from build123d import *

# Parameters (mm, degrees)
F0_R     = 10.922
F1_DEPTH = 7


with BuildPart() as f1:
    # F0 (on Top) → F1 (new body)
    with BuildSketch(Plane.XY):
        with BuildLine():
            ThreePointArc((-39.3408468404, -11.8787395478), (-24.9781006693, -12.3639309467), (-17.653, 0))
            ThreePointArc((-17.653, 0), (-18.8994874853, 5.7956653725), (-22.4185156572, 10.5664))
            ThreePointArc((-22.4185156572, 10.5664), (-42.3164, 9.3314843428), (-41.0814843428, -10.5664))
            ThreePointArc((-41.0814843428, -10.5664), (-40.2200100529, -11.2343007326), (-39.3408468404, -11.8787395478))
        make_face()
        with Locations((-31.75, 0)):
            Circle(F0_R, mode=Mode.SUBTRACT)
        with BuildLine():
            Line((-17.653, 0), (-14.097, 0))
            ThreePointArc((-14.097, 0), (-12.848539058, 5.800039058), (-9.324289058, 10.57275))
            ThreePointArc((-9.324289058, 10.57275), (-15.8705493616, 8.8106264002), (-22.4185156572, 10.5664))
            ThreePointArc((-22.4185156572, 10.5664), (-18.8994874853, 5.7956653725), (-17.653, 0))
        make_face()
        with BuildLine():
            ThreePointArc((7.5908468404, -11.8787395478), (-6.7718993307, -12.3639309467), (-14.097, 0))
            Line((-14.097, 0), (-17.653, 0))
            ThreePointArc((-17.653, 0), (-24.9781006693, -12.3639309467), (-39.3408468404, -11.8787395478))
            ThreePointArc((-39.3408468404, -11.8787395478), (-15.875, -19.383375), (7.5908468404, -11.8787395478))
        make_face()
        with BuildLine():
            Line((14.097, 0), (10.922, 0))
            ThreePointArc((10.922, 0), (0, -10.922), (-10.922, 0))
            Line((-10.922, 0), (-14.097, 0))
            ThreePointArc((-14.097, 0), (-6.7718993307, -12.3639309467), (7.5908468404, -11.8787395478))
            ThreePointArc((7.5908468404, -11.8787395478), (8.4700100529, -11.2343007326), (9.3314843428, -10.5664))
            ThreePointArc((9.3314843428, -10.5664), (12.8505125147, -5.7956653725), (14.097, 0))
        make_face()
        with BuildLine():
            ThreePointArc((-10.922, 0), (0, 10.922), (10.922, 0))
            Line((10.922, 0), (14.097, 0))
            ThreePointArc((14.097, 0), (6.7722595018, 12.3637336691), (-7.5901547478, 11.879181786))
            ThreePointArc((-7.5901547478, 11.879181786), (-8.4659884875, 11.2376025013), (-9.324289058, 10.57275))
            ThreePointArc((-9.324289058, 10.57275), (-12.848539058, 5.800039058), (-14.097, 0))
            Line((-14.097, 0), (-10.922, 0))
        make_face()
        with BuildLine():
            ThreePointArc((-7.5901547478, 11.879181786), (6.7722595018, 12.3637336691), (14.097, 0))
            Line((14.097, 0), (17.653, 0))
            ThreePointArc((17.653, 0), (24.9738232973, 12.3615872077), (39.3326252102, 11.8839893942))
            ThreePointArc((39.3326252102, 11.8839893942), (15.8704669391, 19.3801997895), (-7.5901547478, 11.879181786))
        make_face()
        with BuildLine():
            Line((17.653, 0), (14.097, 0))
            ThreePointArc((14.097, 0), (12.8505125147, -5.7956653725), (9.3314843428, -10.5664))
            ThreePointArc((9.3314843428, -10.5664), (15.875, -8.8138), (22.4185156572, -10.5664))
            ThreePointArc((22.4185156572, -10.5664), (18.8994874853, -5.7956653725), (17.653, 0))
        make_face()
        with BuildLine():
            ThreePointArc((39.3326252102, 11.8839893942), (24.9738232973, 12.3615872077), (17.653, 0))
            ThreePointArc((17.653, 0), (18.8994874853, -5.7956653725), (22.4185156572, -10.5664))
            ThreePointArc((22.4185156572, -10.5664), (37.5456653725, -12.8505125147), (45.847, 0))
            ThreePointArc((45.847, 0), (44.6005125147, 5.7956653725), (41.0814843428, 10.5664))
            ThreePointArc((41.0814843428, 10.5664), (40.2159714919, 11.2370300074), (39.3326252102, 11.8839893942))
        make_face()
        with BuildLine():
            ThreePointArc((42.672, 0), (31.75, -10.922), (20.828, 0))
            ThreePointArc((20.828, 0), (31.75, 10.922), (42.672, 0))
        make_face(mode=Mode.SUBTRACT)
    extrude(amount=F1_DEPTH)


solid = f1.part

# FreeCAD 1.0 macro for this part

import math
import FreeCAD as App
import Part
import Sketcher
from FreeCAD import Vector
Q = App.Units.Quantity

doc = App.newDocument("Part")
body = doc.addObject("PartDesign::Body", "Body")

# Sketch on XY plane
sketch1 = body.newObject("Sketcher::SketchObject", "Sketch")
sketch1.AttachmentSupport = (doc.getObject("XY_Plane"), [""])
sketch1.MapMode = "FlatFace"
sketch1.addGeometry(Part.ArcOfCircle(Part.Circle(Vector(-15.876885, 21.874849, 0), Vector(0, 0, 1), 13.064224), math.radians(-120.048216), math.radians(-59.896213)), False)
sketch1.addGeometry(Part.ArcOfCircle(Part.Circle(Vector(-31.75, 0, 0), Vector(0, 0, 1), 14.097), math.radians(48.551374), math.radians(228.551374)), False)
sketch1.addGeometry(Part.ArcOfCircle(Part.Circle(Vector(-15.875, 21.055999, 0), Vector(0, 0, 1), 40.439374), math.radians(-128.558648), math.radians(-125.469694)), False)
sketch1.addGeometry(Part.ArcOfCircle(Part.Circle(Vector(-15.875, 21.055999, 0), Vector(0, 0, 1), 40.439374), math.radians(-125.469694), math.radians(-54.530306)), False)
sketch1.addGeometry(Part.ArcOfCircle(Part.Circle(Vector(-15.875, 21.055999, 0), Vector(0, 0, 1), 40.439374), math.radians(-54.530306), math.radians(-51.441352)), False)
sketch1.addGeometry(Part.ArcOfCircle(Part.Circle(Vector(15.875, -21.905551, 0), Vector(0, 0, 1), 13.091751), math.radians(60.011924), math.radians(119.988076)), False)
sketch1.addGeometry(Part.ArcOfCircle(Part.Circle(Vector(31.75, 0, 0), Vector(0, 0, 1), 14.097), math.radians(-131.448626), math.radians(0)), False)
sketch1.addGeometry(Part.ArcOfCircle(Part.Circle(Vector(31.75, 0, 0), Vector(0, 0, 1), 14.097), math.radians(0), math.radians(48.551374)), False)
sketch1.addGeometry(Part.ArcOfCircle(Part.Circle(Vector(15.874612, -21.071677, 0), Vector(0, 0, 1), 40.451877), math.radians(51.454763), math.radians(54.556542)), False)
sketch1.addGeometry(Part.ArcOfCircle(Part.Circle(Vector(15.874612, -21.071677, 0), Vector(0, 0, 1), 40.451877), math.radians(54.556542), math.radians(125.455198)), False)
sketch1.addGeometry(Part.ArcOfCircle(Part.Circle(Vector(15.874612, -21.071677, 0), Vector(0, 0, 1), 40.451877), math.radians(125.455198), math.radians(128.530801)), False)
sketch1.addGeometry(Part.Circle(Vector(-31.75, 0, 0), Vector(0, 0, 1), 10.922), False)
sketch1.addGeometry(Part.Circle(Vector(0, 0, 0), Vector(0, 0, 1), 10.922), False)
sketch1.addGeometry(Part.Circle(Vector(31.75, 0, 0), Vector(0, 0, 1), 10.922), False)
sketch1.addConstraint(Sketcher.Constraint("Coincident", 0, 1, 1, 1))
sketch1.addConstraint(Sketcher.Constraint("Coincident", 1, 2, 2, 1))
sketch1.addConstraint(Sketcher.Constraint("Tangent", 2, 2, 3, 1))
sketch1.addConstraint(Sketcher.Constraint("Tangent", 3, 2, 4, 1))
sketch1.addConstraint(Sketcher.Constraint("Coincident", 4, 2, 5, 2))
sketch1.addConstraint(Sketcher.Constraint("Coincident", 5, 1, 6, 1))
sketch1.addConstraint(Sketcher.Constraint("Tangent", 6, 2, 7, 1))
sketch1.addConstraint(Sketcher.Constraint("Coincident", 7, 2, 8, 1))
sketch1.addConstraint(Sketcher.Constraint("Tangent", 8, 2, 9, 1))
sketch1.addConstraint(Sketcher.Constraint("Tangent", 9, 2, 10, 1))
sketch1.addConstraint(Sketcher.Constraint("Coincident", 10, 2, 0, 2))
sketch1.addConstraint(Sketcher.Constraint("Coincident", 12, 3, -1, 1))
sketch1.addConstraint(Sketcher.Constraint("Coincident", 4, 3, 2, 3))
sketch1.addConstraint(Sketcher.Constraint("Coincident", 10, 3, 8, 3))
sketch1.addConstraint(Sketcher.Constraint("Coincident", 11, 3, 1, 3))
sketch1.addConstraint(Sketcher.Constraint("Coincident", 13, 3, 6, 3))
sketch1.addConstraint(Sketcher.Constraint("Equal", 1, 6))
sketch1.addConstraint(Sketcher.Constraint("Equal", 6, 7))
sketch1.addConstraint(Sketcher.Constraint("Equal", 11, 12))
sketch1.addConstraint(Sketcher.Constraint("Equal", 12, 13))
sketch1.addConstraint(Sketcher.Constraint("Symmetric", 1, 3, 6, 3, -1, 1))
sketch1.addConstraint(Sketcher.Constraint("PointOnObject", 1, 3, -1))
sketch1.addConstraint(Sketcher.Constraint("PointOnObject", 6, 2, -1))
sketch1.addConstraint(Sketcher.Constraint("Horizontal", 2, 2, 3, 2))
sketch1.addConstraint(Sketcher.Constraint("Horizontal", 1, 2, 4, 2))
sketch1.addConstraint(Sketcher.Constraint("Horizontal", 4, 2, 5, 1))
sketch1.addConstraint(Sketcher.Constraint("Horizontal", 0, 1, 7, 2))
sketch1.addConstraint(Sketcher.Constraint("Diameter", 11, Q("0.86 in")))
sketch1.addConstraint(Sketcher.Constraint("Radius", 1, Q("0.555 in")))
sketch1.addConstraint(Sketcher.Constraint("DistanceX", 1, 3, -1, 1, Q("1.25 in")))
sketch1.addConstraint(Sketcher.Constraint("DistanceX", 2, 3, -1, 1, Q("0.625 in")))
sketch1.addConstraint(Sketcher.Constraint("DistanceY", -1, 1, 0, 1, Q("0.416 in")))
sketch1.addConstraint(Sketcher.Constraint("DistanceY", 1, 2, -1, 1, Q("0.416 in")))
sketch1.addConstraint(Sketcher.Constraint("Radius", 5, Q("13.091751 mm")))
sketch1.addConstraint(Sketcher.Constraint("Radius", 0, Q("13.064224 mm")))
sketch1.addConstraint(Sketcher.Constraint("Radius", 2, Q("40.439374 mm")))
sketch1.addConstraint(Sketcher.Constraint("Radius", 8, Q("40.451877 mm")))
sketch1.addConstraint(Sketcher.Constraint("DistanceY", 5, 3, 0, 3, Q("43.7804 mm")))
sketch1.addConstraint(Sketcher.Constraint("DistanceY", 10, 2, 0, 3, Q("11.302099 mm")))
sketch1.addConstraint(Sketcher.Constraint("DistanceY", 2, 2, -1, 1, Q("11.87874 mm")))
sketch1.addConstraint(Sketcher.Constraint("DistanceY", -1, 1, 8, 2, Q("11.883989 mm")))
sketch1.addConstraint(Sketcher.Constraint("DistanceY", -1, 1, 9, 2, Q("11.879182 mm")))
pad1 = body.newObject("PartDesign::Pad", "Pad")
pad1.Profile = sketch1
pad1.Length = 7

doc.recompute()
